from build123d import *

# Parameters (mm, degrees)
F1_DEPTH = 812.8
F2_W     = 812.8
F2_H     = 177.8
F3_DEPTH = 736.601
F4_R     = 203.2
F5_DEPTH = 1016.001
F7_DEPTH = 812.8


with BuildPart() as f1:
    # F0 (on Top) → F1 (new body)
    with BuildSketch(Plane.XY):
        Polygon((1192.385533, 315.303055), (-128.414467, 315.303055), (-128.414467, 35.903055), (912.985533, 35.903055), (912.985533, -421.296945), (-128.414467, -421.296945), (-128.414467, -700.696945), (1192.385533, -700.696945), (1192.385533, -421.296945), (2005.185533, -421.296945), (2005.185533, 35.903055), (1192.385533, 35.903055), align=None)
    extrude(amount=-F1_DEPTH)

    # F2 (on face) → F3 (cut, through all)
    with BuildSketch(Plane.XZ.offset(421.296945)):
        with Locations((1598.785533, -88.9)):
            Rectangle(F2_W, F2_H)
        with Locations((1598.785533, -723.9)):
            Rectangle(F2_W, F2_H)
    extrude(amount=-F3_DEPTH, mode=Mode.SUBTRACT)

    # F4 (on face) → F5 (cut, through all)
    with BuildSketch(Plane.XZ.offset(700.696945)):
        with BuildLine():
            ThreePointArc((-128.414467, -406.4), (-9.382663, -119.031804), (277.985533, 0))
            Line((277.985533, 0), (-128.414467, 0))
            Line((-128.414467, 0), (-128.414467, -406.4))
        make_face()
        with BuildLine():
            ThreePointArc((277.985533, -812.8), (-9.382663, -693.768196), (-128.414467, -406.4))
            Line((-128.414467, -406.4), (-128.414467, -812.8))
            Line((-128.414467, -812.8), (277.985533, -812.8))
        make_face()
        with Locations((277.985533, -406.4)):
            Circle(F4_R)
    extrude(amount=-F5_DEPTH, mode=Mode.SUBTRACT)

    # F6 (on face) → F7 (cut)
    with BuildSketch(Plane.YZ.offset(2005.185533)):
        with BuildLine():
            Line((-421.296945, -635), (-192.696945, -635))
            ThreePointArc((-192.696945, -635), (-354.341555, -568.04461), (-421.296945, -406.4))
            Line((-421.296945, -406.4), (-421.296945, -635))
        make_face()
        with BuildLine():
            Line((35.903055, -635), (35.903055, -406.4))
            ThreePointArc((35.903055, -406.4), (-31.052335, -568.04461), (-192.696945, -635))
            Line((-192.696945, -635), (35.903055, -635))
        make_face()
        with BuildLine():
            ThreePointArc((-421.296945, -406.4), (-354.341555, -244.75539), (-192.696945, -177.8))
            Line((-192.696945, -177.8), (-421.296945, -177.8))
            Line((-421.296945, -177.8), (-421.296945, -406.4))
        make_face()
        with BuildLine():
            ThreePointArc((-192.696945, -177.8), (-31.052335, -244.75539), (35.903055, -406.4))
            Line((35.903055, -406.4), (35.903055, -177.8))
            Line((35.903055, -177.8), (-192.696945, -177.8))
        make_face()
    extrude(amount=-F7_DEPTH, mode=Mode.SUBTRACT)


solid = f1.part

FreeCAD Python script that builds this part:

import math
import FreeCAD as App
import Part
import Sketcher
Q = App.Units.Quantity


def add_polygon(sketch, points):
    """Adds a closed chain of lines whose ends are joined by coincident constraints."""
    first, n = sketch.GeometryCount, len(points)
    for a, b in zip(points, points[1:] + points[:1]):
        sketch.addGeometry(Part.LineSegment(App.Vector(*a, 0), App.Vector(*b, 0)), False)
    for i in range(n):
        sketch.addConstraint(Sketcher.Constraint("Coincident", first + i, 2, first + (i + 1) % n, 1))

doc = App.newDocument("Part")
params = doc.addObject("Spreadsheet::Sheet", "Params")
for row, (alias, value) in enumerate([
    ("sketch1_width", "52 in"),
    ("sketch1_width2", "41 in"),
    ("sketch1_width3", "32 in"),
    ("sketch1_height", "11 in"),
    ("sketch1_height2", "18 in"),
    ("pad1_length", "32 in"),
    ("sketch2_width", "32 in"),
    ("sketch2_height", "7 in"),
    ("sketch3_diameter", "16 in"),
    ("sketch3_radius", "16 in"),
    ("sketch4_radius", "9 in"),
    ("pocket3_length", "32 in"),
], start=1):
    params.set(f"A{row}", alias)
    params.set(f"B{row}", "=" + value)
    params.setAlias(f"B{row}", alias)

body = doc.addObject("PartDesign::Body", "Body")

# Sketch on XY plane
sketch1 = body.newObject("Sketcher::SketchObject", "Sketch")
sketch1.AttachmentSupport = (doc.getObject("XY_Plane"), [""])
sketch1.MapMode = "FlatFace"
add_polygon(sketch1, [(1192.385533, 315.303055), (-128.414467, 315.303055), (-128.414467, 35.903055), (912.985533, 35.903055), (912.985533, -421.296945), (-128.414467, -421.296945), (-128.414467, -700.696945), (1192.385533, -700.696945), (1192.385533, -421.296945), (2005.185533, -421.296945), (2005.185533, 35.903055), (1192.385533, 35.903055)])  # lines 0-11
sketch1.addConstraint([
    Sketcher.Constraint("Horizontal", 0),
    Sketcher.Constraint("Vertical", 1),
    Sketcher.Constraint("Horizontal", 2),
    Sketcher.Constraint("Vertical", 3),
    Sketcher.Constraint("Horizontal", 4),
    Sketcher.Constraint("Vertical", 5),
    Sketcher.Constraint("Horizontal", 6),
    Sketcher.Constraint("Vertical", 7),
    Sketcher.Constraint("Horizontal", 8),
    Sketcher.Constraint("Vertical", 9),
    Sketcher.Constraint("Horizontal", 10),
    Sketcher.Constraint("Vertical", 11),
    Sketcher.Constraint("Horizontal", 4, 2, 7, 2),
    Sketcher.Constraint("Horizontal", 2, 2, 9, 2),
    Sketcher.Constraint("Vertical", 1, 2, 4, 2),
    Sketcher.Constraint("Vertical", 7, 2, 10, 2),
    Sketcher.Constraint("Equal", 1, 5),
    Sketcher.Constraint("DistanceX", 0, 2, 0, 1, Q("52 in")),
    Sketcher.Constraint("DistanceX", 2, 1, 2, 2, Q("41 in")),
    Sketcher.Constraint("DistanceX", 8, 1, 8, 2, Q("32 in")),
    Sketcher.Constraint("DistanceY", 1, 2, 1, 1, Q("11 in")),
    Sketcher.Constraint("DistanceY", 3, 2, 3, 1, Q("18 in")),
    Sketcher.Constraint("DistanceX", 0, 2, -1, 1, Q("128.414467 mm")),
    Sketcher.Constraint("DistanceY", -1, 1, 0, 2, Q("315.303055 mm")),
])
sketch1.setExpression("Constraints[29]", "Params.sketch1_width")
sketch1.setExpression("Constraints[30]", "Params.sketch1_width2")
sketch1.setExpression("Constraints[31]", "Params.sketch1_width3")
sketch1.setExpression("Constraints[32]", "Params.sketch1_height")
sketch1.setExpression("Constraints[33]", "Params.sketch1_height2")
pad1 = body.newObject("PartDesign::Pad", "Pad")
pad1.Profile = sketch1
pad1.setExpression("Length", "Params.pad1_length")
pad1.Reversed = True

# Sketch on XZ plane
sketch2 = body.newObject("Sketcher::SketchObject", "Sketch001")
sketch2.AttachmentSupport = (doc.getObject("XZ_Plane"), [""])
sketch2.MapMode = "FlatFace"
sketch2.AttachmentOffset = App.Placement(App.Vector(0, 0, 421.296945), App.Rotation())
add_polygon(sketch2, [(1192.385533, 0), (1192.385533, -177.8), (2005.185533, -177.8), (2005.185533, 0)])  # lines 0-3
add_polygon(sketch2, [(1192.385533, -635), (1192.385533, -812.8), (2005.185533, -812.8), (2005.185533, -635)])  # lines 4-7
sketch2.addConstraint([
    Sketcher.Constraint("Vertical", 0),
    Sketcher.Constraint("Horizontal", 1),
    Sketcher.Constraint("Vertical", 2),
    Sketcher.Constraint("Horizontal", 3),
    Sketcher.Constraint("Vertical", 4),
    Sketcher.Constraint("Horizontal", 5),
    Sketcher.Constraint("Vertical", 6),
    Sketcher.Constraint("Horizontal", 7),
    Sketcher.Constraint("PointOnObject", 2, 2, -1),
    Sketcher.Constraint("Vertical", 3, 2, 4, 2),
    Sketcher.Constraint("Vertical", 2, 2, 5, 2),
    Sketcher.Constraint("Equal", 2, 4),
    Sketcher.Constraint("DistanceX", 1, 1, 1, 2, Q("32 in")),
    Sketcher.Constraint("DistanceY", 0, 2, 0, 1, Q("7 in")),
    Sketcher.Constraint("DistanceY", 4, 2, -1, 1, Q("32 in")),
    Sketcher.Constraint("DistanceX", -1, 1, 0, 2, Q("1192.385533 mm")),
])
sketch2.setExpression("Constraints[20]", "Params.sketch2_width")
sketch2.setExpression("Constraints[21]", "Params.sketch2_height")
pocket1 = body.newObject("PartDesign::Pocket", "Pocket")
pocket1.Profile = sketch2
pocket1.Type = "ThroughAll"

# Sketch on XZ plane
sketch3 = body.newObject("Sketcher::SketchObject", "Sketch002")
sketch3.AttachmentSupport = (doc.getObject("XZ_Plane"), [""])
sketch3.MapMode = "FlatFace"
sketch3.AttachmentOffset = App.Placement(App.Vector(0, 0, 700.696945), App.Rotation())
sketch3.addGeometry([
    Part.ArcOfCircle(Part.Circle(App.Vector(277.985533, -406.4, 0), App.Vector(0, 0, 1), 406.4), math.radians(90), math.radians(180)),  # 0
    Part.LineSegment(App.Vector(277.985533, 0, 0), App.Vector(-128.414467, 0, 0)),  # 1
    Part.LineSegment(App.Vector(-128.414467, 0, 0), App.Vector(-128.414467, -406.4, 0)),  # 2
    Part.ArcOfCircle(Part.Circle(App.Vector(277.985533, -406.4, 0), App.Vector(0, 0, 1), 406.4), math.radians(180), math.radians(270)),  # 3
    Part.LineSegment(App.Vector(-128.414467, -406.4, 0), App.Vector(-128.414467, -812.8, 0)),  # 4
    Part.LineSegment(App.Vector(-128.414467, -812.8, 0), App.Vector(277.985533, -812.8, 0)),  # 5
    Part.Circle(App.Vector(277.985533, -406.4, 0), App.Vector(0, 0, 1), 203.2),  # 6
], False)
sketch3.addConstraint([
    Sketcher.Constraint("Tangent", 0, 1, 1, 1),
    Sketcher.Constraint("Coincident", 1, 2, 2, 1),
    Sketcher.Constraint("Tangent", 2, 2, 0, 2),
    Sketcher.Constraint("Tangent", 3, 1, 4, 1),
    Sketcher.Constraint("Coincident", 4, 2, 5, 1),
    Sketcher.Constraint("Tangent", 5, 2, 3, 2),
    Sketcher.Constraint("Horizontal", 1),
    Sketcher.Constraint("Vertical", 2),
    Sketcher.Constraint("Vertical", 4),
    Sketcher.Constraint("Horizontal", 5),
    Sketcher.Constraint("Coincident", 3, 3, 0, 3),
    Sketcher.Constraint("Coincident", 6, 3, 0, 3),
    Sketcher.Constraint("Equal", 0, 3),
    Sketcher.Constraint("PointOnObject", 0, 1, -1),
    Sketcher.Constraint("Diameter", 6, Q("16 in")),
    Sketcher.Constraint("Radius", 0, Q("16 in")),
    Sketcher.Constraint("DistanceX", -1, 1, 0, 3, Q("277.985533 mm")),
])
sketch3.setExpression("Constraints[14]", "Params.sketch3_diameter")
sketch3.setExpression("Constraints[15]", "Params.sketch3_radius")
pocket2 = body.newObject("PartDesign::Pocket", "Pocket001")
pocket2.Profile = sketch3
pocket2.Type = "ThroughAll"

# Sketch on YZ plane
sketch4 = body.newObject("Sketcher::SketchObject", "Sketch003")
sketch4.AttachmentSupport = (doc.getObject("YZ_Plane"), [""])
sketch4.MapMode = "FlatFace"
sketch4.AttachmentOffset = App.Placement(App.Vector(0, 0, 2005.185533), App.Rotation())
sketch4.addGeometry([
    Part.LineSegment(App.Vector(-421.296945, -635, 0), App.Vector(-192.696945, -635, 0)),  # 0
    Part.ArcOfCircle(Part.Circle(App.Vector(-192.696944, -406.399999, 0), App.Vector(0, 0, 1), 228.600001), math.radians(-180), math.radians(-90)),  # 1
    Part.LineSegment(App.Vector(-421.296945, -406.4, 0), App.Vector(-421.296945, -635, 0)),  # 2
    Part.LineSegment(App.Vector(35.903055, -635, 0), App.Vector(35.903055, -406.4, 0)),  # 3
    Part.ArcOfCircle(Part.Circle(App.Vector(-192.696946, -406.399999, 0), App.Vector(0, 0, 1), 228.600001), math.radians(-90), math.radians(0)),  # 4
    Part.LineSegment(App.Vector(-192.696945, -635, 0), App.Vector(35.903055, -635, 0)),  # 5
    Part.ArcOfCircle(Part.Circle(App.Vector(-192.696944, -406.400001, 0), App.Vector(0, 0, 1), 228.600001), math.radians(90), math.radians(180)),  # 6
    Part.LineSegment(App.Vector(-192.696945, -177.8, 0), App.Vector(-421.296945, -177.8, 0)),  # 7
    Part.LineSegment(App.Vector(-421.296945, -177.8, 0), App.Vector(-421.296945, -406.4, 0)),  # 8
    Part.ArcOfCircle(Part.Circle(App.Vector(-192.696946, -406.400001, 0), App.Vector(0, 0, 1), 228.600001), math.radians(0), math.radians(90)),  # 9
    Part.LineSegment(App.Vector(35.903055, -406.4, 0), App.Vector(35.903055, -177.8, 0)),  # 10
    Part.LineSegment(App.Vector(35.903055, -177.8, 0), App.Vector(-192.696945, -177.8, 0)),  # 11
], False)
sketch4.addConstraint([
    Sketcher.Constraint("Tangent", 0, 2, 1, 2),
    Sketcher.Constraint("Tangent", 1, 1, 2, 1),
    Sketcher.Constraint("Coincident", 2, 2, 0, 1),
    Sketcher.Constraint("Tangent", 3, 2, 4, 2),
    Sketcher.Constraint("Tangent", 4, 1, 5, 1),
    Sketcher.Constraint("Coincident", 5, 2, 3, 1),
    Sketcher.Constraint("Tangent", 6, 1, 7, 1),
    Sketcher.Constraint("Coincident", 7, 2, 8, 1),
    Sketcher.Constraint("Tangent", 8, 2, 6, 2),
    Sketcher.Constraint("Tangent", 9, 1, 10, 1),
    Sketcher.Constraint("Coincident", 10, 2, 11, 1),
    Sketcher.Constraint("Tangent", 11, 2, 9, 2),
    Sketcher.Constraint("Horizontal", 0),
    Sketcher.Constraint("Vertical", 2),
    Sketcher.Constraint("Vertical", 3),
    Sketcher.Constraint("Horizontal", 5),
    Sketcher.Constraint("Horizontal", 7),
    Sketcher.Constraint("Vertical", 8),
    Sketcher.Constraint("Vertical", 10),
    Sketcher.Constraint("Horizontal", 11),
    Sketcher.Constraint("Coincident", 4, 3, 1, 3),
    Sketcher.Constraint("Coincident", 6, 3, 1, 3),
    Sketcher.Constraint("Coincident", 9, 3, 1, 3),
    Sketcher.Constraint("Equal", 1, 4),
    Sketcher.Constraint("Equal", 4, 6),
    Sketcher.Constraint("Equal", 6, 9),
    Sketcher.Constraint("Radius", 1, Q("9 in")),
    Sketcher.Constraint("DistanceY", 1, 3, -1, 1, Q("16 in")),
    Sketcher.Constraint("DistanceX", 1, 3, -1, 1, Q("192.696944 mm")),
])
sketch4.setExpression("Constraints[26]", "Params.sketch4_radius")
pocket3 = body.newObject("PartDesign::Pocket", "Pocket002")
pocket3.Profile = sketch4
pocket3.setExpression("Length", "Params.pocket3_length")

doc.recompute()
